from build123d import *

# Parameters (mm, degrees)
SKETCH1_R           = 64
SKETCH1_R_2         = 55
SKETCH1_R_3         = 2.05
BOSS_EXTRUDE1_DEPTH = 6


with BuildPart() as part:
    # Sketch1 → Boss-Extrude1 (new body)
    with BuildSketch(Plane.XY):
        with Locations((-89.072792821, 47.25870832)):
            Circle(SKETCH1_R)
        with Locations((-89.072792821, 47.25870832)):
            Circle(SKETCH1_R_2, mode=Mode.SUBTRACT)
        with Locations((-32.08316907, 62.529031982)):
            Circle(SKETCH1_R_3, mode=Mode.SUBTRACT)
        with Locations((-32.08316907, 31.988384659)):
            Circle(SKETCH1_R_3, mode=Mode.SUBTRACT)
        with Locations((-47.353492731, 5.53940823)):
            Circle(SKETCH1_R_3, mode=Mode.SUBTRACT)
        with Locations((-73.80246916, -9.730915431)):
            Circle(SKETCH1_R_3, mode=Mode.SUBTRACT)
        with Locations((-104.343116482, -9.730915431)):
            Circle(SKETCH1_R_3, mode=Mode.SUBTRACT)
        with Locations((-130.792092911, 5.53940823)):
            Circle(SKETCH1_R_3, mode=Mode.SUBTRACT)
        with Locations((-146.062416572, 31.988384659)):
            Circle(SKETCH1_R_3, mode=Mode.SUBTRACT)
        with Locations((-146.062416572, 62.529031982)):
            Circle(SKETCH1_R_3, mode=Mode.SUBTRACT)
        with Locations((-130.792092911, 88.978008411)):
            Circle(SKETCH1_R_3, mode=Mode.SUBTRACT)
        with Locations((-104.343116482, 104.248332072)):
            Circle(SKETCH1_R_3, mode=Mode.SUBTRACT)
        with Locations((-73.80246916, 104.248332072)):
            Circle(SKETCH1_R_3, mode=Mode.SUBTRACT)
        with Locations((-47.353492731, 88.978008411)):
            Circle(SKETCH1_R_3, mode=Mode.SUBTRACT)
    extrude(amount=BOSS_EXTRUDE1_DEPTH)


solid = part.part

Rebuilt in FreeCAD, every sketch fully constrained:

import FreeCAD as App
import Part
import Sketcher
from FreeCAD import Vector
Q = App.Units.Quantity

doc = App.newDocument("Part")
body = doc.addObject("PartDesign::Body", "Body")

# Sketch on XY plane
sketch1 = body.newObject("Sketcher::SketchObject", "Sketch")
sketch1.AttachmentSupport = (doc.getObject("XY_Plane"), [""])
sketch1.MapMode = "FlatFace"
sketch1.addGeometry(Part.Circle(Vector(-89.1, 47.3, 0), Vector(0, 0, 1), 64), False)
sketch1.addGeometry(Part.Circle(Vector(-130.8, 5.5, 0), Vector(0, 0, 1), 2), False)
sketch1.addGeometry(Part.Circle(Vector(-104.3, -9.7, 0), Vector(0, 0, 1), 2), False)
sketch1.addGeometry(Part.Circle(Vector(-146.1, 32, 0), Vector(0, 0, 1), 2), False)
sketch1.addGeometry(Part.Circle(Vector(-73.8, -9.7, 0), Vector(0, 0, 1), 2), False)
sketch1.addGeometry(Part.Circle(Vector(-47.4, 5.5, 0), Vector(0, 0, 1), 2), False)
sketch1.addGeometry(Part.Circle(Vector(-89.1, 47.3, 0), Vector(0, 0, 1), 55), False)
sketch1.addGeometry(Part.Circle(Vector(-32.1, 32, 0), Vector(0, 0, 1), 2), False)
sketch1.addGeometry(Part.Circle(Vector(-146.1, 62.5, 0), Vector(0, 0, 1), 2), False)
sketch1.addGeometry(Part.Circle(Vector(-130.8, 89, 0), Vector(0, 0, 1), 2), False)
sketch1.addGeometry(Part.Circle(Vector(-104.3, 104.2, 0), Vector(0, 0, 1), 2), False)
sketch1.addGeometry(Part.Circle(Vector(-32.1, 62.5, 0), Vector(0, 0, 1), 2), False)
sketch1.addGeometry(Part.Circle(Vector(-73.8, 104.2, 0), Vector(0, 0, 1), 2), False)
sketch1.addGeometry(Part.Circle(Vector(-47.4, 89, 0), Vector(0, 0, 1), 2), False)
sketch1.addConstraint(Sketcher.Constraint("Coincident", 6, 3, 0, 3))
sketch1.addConstraint(Sketcher.Constraint("Equal", 1, 2))
sketch1.addConstraint(Sketcher.Constraint("Equal", 2, 3))
sketch1.addConstraint(Sketcher.Constraint("Equal", 3, 4))
sketch1.addConstraint(Sketcher.Constraint("Equal", 4, 5))
sketch1.addConstraint(Sketcher.Constraint("Equal", 5, 7))
sketch1.addConstraint(Sketcher.Constraint("Equal", 7, 8))
sketch1.addConstraint(Sketcher.Constraint("Equal", 8, 9))
sketch1.addConstraint(Sketcher.Constraint("Equal", 9, 10))
sketch1.addConstraint(Sketcher.Constraint("Equal", 10, 11))
sketch1.addConstraint(Sketcher.Constraint("Equal", 11, 12))
sketch1.addConstraint(Sketcher.Constraint("Equal", 12, 13))
sketch1.addConstraint(Sketcher.Constraint("Horizontal", 2, 3, 4, 3))
sketch1.addConstraint(Sketcher.Constraint("Horizontal", 1, 3, 5, 3))
sketch1.addConstraint(Sketcher.Constraint("Horizontal", 3, 3, 7, 3))
sketch1.addConstraint(Sketcher.Constraint("Horizontal", 8, 3, 11, 3))
sketch1.addConstraint(Sketcher.Constraint("Horizontal", 10, 3, 12, 3))
sketch1.addConstraint(Sketcher.Constraint("Horizontal", 9, 3, 13, 3))
sketch1.addConstraint(Sketcher.Constraint("Vertical", 3, 3, 8, 3))
sketch1.addConstraint(Sketcher.Constraint("Vertical", 1, 3, 9, 3))
sketch1.addConstraint(Sketcher.Constraint("Vertical", 2, 3, 10, 3))
sketch1.addConstraint(Sketcher.Constraint("Vertical", 7, 3, 11, 3))
sketch1.addConstraint(Sketcher.Constraint("Vertical", 4, 3, 12, 3))
sketch1.addConstraint(Sketcher.Constraint("Vertical", 5, 3, 13, 3))
sketch1.addConstraint(Sketcher.Constraint("Diameter", 0, Q("128 mm")))
sketch1.addConstraint(Sketcher.Constraint("Diameter", 6, Q("110 mm")))
sketch1.addConstraint(Sketcher.Constraint("Diameter", 1, Q("4.1 mm")))
sketch1.addConstraint(Sketcher.Constraint("DistanceX", 1, 3, 0, 3, Q("41.7193 mm")))
sketch1.addConstraint(Sketcher.Constraint("DistanceY", 1, 3, 0, 3, Q("41.7193 mm")))
sketch1.addConstraint(Sketcher.Constraint("DistanceX", 3, 3, 2, 3, Q("41.7193 mm")))
sketch1.addConstraint(Sketcher.Constraint("DistanceY", 2, 3, 3, 3, Q("41.7193 mm")))
sketch1.addConstraint(Sketcher.Constraint("DistanceX", 0, 3, 5, 3, Q("41.7193 mm")))
sketch1.addConstraint(Sketcher.Constraint("DistanceX", 4, 3, 7, 3, Q("41.7193 mm")))
sketch1.addConstraint(Sketcher.Constraint("DistanceY", 0, 3, 9, 3, Q("41.7193 mm")))
sketch1.addConstraint(Sketcher.Constraint("DistanceY", 8, 3, 10, 3, Q("41.7193 mm")))
sketch1.addConstraint(Sketcher.Constraint("DistanceY", -1, 1, 0, 3, Q("47.258708 mm")))
sketch1.addConstraint(Sketcher.Constraint("DistanceX", 4, 3, -1, 1, Q("73.802469 mm")))
sketch1.addConstraint(Sketcher.Constraint("DistanceY", -1, 1, 8, 3, Q("62.529032 mm")))
sketch1.addConstraint(Sketcher.Constraint("DistanceX", 0, 3, -1, 1, Q("89.072793 mm")))
sketch1.addConstraint(Sketcher.Constraint("DistanceX", 2, 3, -1, 1, Q("104.343116 mm")))
sketch1.addConstraint(Sketcher.Constraint("DistanceY", 2, 3, -1, 1, Q("9.730915 mm")))
pad1 = body.newObject("PartDesign::Pad", "Pad")
pad1.Profile = sketch1
pad1.Length = 6

doc.recompute()
